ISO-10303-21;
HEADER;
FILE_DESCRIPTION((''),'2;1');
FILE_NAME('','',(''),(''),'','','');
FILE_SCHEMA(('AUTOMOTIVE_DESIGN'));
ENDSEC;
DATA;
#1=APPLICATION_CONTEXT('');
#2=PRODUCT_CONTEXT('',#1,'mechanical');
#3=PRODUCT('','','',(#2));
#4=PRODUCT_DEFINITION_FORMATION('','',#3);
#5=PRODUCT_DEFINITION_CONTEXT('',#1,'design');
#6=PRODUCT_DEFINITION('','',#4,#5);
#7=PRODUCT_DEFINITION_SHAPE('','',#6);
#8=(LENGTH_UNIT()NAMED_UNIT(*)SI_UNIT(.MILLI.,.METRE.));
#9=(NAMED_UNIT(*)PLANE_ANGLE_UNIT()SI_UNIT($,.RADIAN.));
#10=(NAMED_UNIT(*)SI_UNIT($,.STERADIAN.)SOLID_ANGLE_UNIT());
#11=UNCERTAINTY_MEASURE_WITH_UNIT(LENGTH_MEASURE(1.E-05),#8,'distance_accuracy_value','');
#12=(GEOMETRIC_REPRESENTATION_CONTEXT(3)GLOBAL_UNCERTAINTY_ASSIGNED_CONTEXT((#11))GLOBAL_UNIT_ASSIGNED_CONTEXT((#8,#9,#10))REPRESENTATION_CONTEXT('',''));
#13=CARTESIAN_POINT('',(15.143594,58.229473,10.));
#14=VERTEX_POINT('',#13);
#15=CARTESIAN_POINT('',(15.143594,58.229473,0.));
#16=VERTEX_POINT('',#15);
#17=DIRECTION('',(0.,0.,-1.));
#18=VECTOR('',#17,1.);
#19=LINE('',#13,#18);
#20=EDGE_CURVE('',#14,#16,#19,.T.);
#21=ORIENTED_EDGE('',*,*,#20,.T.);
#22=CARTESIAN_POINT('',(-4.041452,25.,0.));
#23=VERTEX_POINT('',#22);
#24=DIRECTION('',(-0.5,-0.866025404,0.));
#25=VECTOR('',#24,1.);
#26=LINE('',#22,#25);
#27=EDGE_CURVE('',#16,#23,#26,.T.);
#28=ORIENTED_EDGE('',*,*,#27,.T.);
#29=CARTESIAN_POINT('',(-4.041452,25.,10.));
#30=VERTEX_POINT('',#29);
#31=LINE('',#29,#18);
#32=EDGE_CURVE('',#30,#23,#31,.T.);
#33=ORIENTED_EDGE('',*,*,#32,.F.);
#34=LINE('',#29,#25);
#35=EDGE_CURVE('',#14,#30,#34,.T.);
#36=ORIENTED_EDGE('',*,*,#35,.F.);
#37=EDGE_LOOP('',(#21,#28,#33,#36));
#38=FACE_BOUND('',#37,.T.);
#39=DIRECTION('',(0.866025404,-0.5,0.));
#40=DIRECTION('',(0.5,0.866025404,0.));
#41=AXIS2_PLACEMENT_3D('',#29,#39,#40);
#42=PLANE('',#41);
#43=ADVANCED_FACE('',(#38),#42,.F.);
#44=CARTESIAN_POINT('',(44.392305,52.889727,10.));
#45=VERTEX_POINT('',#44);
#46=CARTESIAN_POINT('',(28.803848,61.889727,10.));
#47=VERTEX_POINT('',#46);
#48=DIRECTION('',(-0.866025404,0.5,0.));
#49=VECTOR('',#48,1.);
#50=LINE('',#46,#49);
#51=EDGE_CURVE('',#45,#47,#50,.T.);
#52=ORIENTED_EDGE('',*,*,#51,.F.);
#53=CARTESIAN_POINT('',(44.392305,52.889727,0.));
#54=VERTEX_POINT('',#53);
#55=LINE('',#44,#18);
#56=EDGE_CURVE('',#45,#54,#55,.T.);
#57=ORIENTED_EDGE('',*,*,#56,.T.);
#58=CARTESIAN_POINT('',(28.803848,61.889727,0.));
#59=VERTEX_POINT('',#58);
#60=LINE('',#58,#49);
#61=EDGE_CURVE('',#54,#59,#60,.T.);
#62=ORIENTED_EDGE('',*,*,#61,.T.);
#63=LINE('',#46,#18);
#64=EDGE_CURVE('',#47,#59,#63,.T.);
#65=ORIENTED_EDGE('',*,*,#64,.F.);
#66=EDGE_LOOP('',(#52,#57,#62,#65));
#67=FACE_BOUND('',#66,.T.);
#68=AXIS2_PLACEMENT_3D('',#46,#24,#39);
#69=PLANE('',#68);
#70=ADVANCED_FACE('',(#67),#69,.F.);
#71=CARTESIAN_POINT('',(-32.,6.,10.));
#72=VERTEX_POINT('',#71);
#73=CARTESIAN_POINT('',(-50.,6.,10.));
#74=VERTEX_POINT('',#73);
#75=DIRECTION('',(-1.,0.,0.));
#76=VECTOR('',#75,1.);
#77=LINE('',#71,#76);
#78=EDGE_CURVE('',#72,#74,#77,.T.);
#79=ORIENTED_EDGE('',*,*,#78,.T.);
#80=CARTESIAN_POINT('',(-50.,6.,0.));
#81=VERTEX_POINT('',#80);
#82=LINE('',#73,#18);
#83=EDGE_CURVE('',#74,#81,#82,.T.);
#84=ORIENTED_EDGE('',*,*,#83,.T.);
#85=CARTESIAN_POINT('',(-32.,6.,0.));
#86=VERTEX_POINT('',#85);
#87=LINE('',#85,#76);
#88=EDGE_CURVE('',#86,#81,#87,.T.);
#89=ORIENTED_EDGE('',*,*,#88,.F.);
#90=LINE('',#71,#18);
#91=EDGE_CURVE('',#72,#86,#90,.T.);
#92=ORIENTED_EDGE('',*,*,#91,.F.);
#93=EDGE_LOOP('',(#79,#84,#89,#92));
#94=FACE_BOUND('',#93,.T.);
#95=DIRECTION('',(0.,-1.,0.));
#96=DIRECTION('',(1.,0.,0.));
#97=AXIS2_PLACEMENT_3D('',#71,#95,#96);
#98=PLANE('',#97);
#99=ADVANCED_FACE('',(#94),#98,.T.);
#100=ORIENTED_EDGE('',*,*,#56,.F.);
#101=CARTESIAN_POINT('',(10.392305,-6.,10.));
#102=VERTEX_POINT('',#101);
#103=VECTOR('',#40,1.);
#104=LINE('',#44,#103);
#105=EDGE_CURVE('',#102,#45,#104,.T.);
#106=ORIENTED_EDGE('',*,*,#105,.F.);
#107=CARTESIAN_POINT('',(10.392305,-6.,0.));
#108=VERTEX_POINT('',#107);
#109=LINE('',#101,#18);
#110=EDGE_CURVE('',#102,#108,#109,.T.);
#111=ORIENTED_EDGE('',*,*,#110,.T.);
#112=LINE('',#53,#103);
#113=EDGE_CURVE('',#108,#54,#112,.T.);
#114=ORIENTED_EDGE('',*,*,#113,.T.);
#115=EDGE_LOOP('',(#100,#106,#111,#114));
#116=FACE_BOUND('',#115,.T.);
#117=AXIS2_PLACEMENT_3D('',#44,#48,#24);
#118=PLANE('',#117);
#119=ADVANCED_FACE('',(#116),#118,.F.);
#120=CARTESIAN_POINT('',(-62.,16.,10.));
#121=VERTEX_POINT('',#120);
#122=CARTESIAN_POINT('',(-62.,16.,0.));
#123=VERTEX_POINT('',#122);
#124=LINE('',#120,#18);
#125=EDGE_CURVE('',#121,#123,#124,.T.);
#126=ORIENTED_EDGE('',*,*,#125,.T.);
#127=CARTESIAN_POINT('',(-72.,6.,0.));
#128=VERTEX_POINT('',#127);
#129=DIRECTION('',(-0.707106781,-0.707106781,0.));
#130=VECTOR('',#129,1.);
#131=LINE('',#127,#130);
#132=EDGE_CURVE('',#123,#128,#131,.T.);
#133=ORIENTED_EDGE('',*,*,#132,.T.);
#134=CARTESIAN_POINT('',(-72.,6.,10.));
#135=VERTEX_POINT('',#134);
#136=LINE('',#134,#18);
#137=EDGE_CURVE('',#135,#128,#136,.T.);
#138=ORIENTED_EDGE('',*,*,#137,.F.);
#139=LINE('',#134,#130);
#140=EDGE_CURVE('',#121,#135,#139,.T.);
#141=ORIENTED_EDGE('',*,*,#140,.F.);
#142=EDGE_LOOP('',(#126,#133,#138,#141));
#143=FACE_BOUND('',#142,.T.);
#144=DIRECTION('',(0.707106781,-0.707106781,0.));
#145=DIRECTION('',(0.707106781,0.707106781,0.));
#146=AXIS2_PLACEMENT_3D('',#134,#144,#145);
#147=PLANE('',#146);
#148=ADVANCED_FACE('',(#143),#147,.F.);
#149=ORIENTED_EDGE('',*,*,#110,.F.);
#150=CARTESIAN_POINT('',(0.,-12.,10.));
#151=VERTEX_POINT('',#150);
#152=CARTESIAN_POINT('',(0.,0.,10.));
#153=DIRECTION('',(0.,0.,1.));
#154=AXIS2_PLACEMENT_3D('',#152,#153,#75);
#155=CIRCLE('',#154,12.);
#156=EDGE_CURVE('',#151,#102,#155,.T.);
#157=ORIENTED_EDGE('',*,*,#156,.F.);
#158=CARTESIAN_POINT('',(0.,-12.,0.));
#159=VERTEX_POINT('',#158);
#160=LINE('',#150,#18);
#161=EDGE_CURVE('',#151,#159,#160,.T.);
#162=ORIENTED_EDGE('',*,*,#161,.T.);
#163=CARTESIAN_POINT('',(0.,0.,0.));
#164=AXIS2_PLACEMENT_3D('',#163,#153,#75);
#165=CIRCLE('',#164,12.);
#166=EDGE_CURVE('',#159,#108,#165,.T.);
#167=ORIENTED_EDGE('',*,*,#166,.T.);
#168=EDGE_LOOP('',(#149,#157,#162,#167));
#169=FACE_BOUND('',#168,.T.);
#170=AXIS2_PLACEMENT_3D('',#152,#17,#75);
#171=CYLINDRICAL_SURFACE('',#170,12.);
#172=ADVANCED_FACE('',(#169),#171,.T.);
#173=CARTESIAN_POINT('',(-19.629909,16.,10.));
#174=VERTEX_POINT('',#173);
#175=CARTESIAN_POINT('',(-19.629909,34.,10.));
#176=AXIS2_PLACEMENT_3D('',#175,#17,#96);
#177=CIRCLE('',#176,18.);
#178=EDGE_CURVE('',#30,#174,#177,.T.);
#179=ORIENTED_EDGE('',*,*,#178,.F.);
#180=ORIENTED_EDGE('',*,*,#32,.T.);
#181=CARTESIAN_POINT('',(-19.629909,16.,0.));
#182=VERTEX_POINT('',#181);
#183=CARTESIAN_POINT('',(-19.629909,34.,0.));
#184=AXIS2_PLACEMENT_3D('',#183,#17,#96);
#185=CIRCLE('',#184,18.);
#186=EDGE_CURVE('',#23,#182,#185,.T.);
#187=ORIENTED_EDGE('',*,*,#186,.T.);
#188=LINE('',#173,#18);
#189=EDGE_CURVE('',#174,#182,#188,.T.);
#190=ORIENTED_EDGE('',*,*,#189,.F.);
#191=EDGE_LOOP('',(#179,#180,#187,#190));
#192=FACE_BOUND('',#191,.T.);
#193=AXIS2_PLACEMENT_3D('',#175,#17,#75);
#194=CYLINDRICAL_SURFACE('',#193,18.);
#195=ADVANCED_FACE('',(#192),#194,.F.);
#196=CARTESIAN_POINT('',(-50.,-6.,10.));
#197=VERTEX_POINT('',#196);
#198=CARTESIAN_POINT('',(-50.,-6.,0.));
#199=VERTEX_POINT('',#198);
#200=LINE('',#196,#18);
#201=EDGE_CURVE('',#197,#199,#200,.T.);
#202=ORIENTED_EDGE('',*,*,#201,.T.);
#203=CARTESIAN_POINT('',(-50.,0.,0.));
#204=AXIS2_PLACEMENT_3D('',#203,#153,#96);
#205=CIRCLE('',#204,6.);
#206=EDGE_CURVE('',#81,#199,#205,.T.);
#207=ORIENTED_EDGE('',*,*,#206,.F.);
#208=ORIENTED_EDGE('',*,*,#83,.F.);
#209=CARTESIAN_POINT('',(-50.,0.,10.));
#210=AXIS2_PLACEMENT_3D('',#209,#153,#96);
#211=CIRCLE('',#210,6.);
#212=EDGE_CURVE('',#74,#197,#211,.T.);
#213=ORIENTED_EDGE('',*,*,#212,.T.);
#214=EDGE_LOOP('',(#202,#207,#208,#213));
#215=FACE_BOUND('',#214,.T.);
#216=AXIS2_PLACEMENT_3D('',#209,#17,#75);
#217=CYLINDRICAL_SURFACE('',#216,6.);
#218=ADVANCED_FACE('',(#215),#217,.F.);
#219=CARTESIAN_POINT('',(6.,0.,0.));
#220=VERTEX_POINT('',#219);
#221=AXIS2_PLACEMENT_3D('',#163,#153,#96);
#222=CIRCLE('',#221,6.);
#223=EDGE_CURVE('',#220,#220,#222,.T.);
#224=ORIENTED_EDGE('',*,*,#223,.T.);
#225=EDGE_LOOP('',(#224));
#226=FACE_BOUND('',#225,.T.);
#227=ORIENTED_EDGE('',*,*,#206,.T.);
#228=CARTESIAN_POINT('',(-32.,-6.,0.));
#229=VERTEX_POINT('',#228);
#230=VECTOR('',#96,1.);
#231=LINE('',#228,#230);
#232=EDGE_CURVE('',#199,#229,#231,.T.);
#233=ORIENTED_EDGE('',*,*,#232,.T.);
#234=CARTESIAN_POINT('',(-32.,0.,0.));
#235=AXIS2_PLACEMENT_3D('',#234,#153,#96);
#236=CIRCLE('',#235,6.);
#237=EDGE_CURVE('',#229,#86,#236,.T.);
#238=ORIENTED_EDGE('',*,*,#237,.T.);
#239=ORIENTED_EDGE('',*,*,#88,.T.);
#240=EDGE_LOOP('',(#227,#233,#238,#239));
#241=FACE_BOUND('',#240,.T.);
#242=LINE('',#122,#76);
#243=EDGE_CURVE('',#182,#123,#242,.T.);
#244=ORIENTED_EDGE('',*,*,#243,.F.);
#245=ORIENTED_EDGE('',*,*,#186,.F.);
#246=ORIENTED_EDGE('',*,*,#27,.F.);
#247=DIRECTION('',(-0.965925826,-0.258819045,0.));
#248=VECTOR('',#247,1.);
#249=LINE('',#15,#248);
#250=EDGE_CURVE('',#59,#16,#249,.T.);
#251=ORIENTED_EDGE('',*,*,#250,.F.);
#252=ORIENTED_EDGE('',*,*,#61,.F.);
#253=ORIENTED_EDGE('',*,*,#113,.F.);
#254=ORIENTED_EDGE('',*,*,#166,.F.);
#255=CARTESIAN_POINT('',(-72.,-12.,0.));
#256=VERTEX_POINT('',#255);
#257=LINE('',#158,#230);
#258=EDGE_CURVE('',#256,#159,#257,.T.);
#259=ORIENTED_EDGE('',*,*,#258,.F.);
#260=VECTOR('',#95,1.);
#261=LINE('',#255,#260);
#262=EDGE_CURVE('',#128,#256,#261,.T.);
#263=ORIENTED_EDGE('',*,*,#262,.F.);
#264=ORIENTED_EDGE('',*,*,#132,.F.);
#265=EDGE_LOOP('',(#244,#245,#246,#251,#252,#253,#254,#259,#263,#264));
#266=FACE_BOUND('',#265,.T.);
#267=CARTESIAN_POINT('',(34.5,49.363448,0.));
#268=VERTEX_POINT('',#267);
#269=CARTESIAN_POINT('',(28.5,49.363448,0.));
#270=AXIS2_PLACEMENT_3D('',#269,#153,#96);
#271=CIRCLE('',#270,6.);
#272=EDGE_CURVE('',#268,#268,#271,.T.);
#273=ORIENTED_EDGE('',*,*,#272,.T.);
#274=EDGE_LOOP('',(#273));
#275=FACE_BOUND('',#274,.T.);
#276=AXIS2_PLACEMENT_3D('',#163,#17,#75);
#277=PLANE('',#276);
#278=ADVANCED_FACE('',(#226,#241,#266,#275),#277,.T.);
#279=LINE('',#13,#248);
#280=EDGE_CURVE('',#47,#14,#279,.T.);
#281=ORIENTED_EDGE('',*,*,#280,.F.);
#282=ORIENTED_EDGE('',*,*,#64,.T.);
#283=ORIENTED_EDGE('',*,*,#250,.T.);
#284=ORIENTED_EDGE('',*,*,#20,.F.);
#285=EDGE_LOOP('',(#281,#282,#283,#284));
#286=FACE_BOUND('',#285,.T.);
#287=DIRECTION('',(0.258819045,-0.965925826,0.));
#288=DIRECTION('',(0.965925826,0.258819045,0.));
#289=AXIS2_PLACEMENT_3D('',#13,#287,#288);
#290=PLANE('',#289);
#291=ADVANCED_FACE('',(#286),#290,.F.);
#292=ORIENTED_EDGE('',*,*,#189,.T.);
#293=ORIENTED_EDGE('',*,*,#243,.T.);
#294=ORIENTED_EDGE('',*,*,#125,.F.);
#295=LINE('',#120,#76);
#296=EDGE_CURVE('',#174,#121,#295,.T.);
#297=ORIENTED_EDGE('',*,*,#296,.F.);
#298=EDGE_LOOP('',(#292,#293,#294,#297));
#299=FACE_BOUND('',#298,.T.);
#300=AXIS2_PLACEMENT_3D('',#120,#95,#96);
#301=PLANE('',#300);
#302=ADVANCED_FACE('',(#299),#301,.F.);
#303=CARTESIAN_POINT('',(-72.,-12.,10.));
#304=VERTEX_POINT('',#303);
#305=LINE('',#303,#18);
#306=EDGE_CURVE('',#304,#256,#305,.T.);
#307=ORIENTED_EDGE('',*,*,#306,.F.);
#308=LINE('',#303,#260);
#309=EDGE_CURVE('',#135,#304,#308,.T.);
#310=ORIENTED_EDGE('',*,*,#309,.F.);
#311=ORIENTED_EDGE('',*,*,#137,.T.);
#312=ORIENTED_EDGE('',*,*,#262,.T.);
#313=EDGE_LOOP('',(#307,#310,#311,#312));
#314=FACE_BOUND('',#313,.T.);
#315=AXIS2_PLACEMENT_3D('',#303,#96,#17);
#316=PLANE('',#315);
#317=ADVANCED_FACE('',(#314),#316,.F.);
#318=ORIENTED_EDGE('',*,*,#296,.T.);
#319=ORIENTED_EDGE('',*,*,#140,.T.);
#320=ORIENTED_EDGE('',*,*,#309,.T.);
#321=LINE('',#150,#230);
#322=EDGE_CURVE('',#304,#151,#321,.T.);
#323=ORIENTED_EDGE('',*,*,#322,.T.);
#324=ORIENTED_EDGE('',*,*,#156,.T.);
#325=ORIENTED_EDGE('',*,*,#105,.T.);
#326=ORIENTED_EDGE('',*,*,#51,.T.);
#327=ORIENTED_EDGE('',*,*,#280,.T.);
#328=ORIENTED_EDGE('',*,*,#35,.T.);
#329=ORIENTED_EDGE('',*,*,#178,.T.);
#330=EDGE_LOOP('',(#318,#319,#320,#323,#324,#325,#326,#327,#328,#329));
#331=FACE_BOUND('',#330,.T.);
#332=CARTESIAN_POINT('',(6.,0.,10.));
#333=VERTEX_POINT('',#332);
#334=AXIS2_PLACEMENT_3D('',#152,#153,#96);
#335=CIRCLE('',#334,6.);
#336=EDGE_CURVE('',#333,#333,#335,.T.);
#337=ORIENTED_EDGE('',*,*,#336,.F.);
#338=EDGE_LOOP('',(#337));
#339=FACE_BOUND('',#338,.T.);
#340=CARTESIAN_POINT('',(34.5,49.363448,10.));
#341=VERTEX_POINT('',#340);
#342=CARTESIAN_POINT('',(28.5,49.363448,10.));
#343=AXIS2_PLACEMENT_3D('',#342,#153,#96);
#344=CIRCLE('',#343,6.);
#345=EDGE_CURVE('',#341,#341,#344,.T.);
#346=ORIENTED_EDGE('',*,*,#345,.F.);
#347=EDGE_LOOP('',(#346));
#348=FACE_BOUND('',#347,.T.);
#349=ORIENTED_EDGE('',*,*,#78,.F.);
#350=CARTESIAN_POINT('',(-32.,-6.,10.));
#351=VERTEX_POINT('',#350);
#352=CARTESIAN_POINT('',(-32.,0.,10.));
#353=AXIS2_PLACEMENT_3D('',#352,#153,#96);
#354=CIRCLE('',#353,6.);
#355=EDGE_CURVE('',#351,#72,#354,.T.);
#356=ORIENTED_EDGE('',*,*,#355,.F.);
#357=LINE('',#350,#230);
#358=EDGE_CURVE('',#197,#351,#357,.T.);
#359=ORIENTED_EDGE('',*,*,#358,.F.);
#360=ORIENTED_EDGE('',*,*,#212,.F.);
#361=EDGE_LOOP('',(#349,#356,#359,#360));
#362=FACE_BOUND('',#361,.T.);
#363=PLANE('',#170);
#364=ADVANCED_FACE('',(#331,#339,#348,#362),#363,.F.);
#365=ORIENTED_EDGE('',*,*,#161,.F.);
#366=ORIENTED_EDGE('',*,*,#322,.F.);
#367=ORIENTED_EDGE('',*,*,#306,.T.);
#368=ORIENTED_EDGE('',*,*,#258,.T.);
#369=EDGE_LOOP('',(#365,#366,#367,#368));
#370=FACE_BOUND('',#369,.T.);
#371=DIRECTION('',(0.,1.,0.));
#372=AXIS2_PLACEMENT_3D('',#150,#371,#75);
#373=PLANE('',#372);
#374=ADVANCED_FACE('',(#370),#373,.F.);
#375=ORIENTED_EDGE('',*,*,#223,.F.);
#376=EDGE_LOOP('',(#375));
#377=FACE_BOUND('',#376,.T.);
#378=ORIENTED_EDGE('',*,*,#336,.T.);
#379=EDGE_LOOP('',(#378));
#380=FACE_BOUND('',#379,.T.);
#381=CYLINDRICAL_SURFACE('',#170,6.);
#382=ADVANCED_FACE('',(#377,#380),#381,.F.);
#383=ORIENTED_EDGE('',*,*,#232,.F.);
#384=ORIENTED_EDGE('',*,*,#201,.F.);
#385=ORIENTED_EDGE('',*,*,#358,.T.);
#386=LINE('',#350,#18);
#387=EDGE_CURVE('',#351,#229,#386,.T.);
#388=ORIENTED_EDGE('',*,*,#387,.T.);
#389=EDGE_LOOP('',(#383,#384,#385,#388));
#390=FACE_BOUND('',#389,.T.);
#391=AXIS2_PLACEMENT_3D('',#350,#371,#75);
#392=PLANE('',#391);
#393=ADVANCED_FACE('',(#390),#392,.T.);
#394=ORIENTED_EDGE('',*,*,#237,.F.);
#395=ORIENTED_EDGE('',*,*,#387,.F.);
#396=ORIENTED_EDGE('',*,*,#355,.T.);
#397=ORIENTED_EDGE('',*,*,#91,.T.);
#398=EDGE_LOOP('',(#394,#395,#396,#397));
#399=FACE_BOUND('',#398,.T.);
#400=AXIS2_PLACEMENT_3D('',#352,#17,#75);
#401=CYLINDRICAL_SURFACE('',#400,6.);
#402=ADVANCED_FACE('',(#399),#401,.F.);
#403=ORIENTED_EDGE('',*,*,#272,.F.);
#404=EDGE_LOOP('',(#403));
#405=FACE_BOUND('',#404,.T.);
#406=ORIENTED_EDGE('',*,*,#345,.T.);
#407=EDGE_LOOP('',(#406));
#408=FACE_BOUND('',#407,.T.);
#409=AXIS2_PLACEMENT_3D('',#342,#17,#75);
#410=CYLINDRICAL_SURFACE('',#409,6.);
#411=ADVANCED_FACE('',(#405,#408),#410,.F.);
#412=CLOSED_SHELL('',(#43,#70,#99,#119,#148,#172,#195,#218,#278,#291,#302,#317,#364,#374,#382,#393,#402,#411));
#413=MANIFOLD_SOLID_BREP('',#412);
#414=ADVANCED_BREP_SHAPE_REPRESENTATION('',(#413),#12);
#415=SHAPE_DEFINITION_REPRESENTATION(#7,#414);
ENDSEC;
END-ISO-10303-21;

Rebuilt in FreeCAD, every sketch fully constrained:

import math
import FreeCAD as App
import Part
import Sketcher
from FreeCAD import Vector
Q = App.Units.Quantity

doc = App.newDocument("Part")
body = doc.addObject("PartDesign::Body", "Body")

# Sketch on XY plane
sketch1 = body.newObject("Sketcher::SketchObject", "Sketch")
sketch1.AttachmentSupport = (doc.getObject("XY_Plane"), [""])
sketch1.MapMode = "FlatFace"
sketch1.addGeometry([
    Part.LineSegment(Vector(-19.629909, 16, 0), Vector(-62, 16, 0)),  # 0
    Part.LineSegment(Vector(-62, 16, 0), Vector(-72, 6, 0)),  # 1
    Part.LineSegment(Vector(-72, 6, 0), Vector(-72, -12, 0)),  # 2
    Part.LineSegment(Vector(-72, -12, 0), Vector(0, -12, 0)),  # 3
    Part.ArcOfCircle(Part.Circle(Vector(0, 0, 0), Vector(0, 0, 1), 12), math.radians(-90), math.radians(-30)),  # 4
    Part.LineSegment(Vector(10.392305, -6, 0), Vector(44.392305, 52.889727, 0)),  # 5
    Part.LineSegment(Vector(44.392305, 52.889727, 0), Vector(28.803848, 61.889727, 0)),  # 6
    Part.LineSegment(Vector(28.803848, 61.889727, 0), Vector(15.143594, 58.229473, 0)),  # 7
    Part.LineSegment(Vector(15.143594, 58.229473, 0), Vector(-4.041452, 25, 0)),  # 8
    Part.ArcOfCircle(Part.Circle(Vector(-19.629909, 34, 0), Vector(0, 0, 1), 18), math.radians(-90), math.radians(-30)),  # 9
    Part.Circle(Vector(0, 0, 0), Vector(0, 0, 1), 6),  # 10
    Part.LineSegment(Vector(-32, -6, 0), Vector(-50, -6, 0)),  # 11
    Part.ArcOfCircle(Part.Circle(Vector(-50, 0, 0), Vector(0, 0, 1), 6), math.radians(90), math.radians(270)),  # 12
    Part.LineSegment(Vector(-50, 6, 0), Vector(-32, 6, 0)),  # 13
    Part.ArcOfCircle(Part.Circle(Vector(-32, 0, 0), Vector(0, 0, 1), 6), math.radians(-90), math.radians(90)),  # 14
    Part.Circle(Vector(28.5, 49.363448, 0), Vector(0, 0, 1), 6),  # 15
], False)
sketch1.addConstraint([
    Sketcher.Constraint("Coincident", 0, 2, 1, 1),
    Sketcher.Constraint("Coincident", 1, 2, 2, 1),
    Sketcher.Constraint("Coincident", 2, 2, 3, 1),
    Sketcher.Constraint("Tangent", 3, 2, 4, 1),
    Sketcher.Constraint("Tangent", 4, 2, 5, 1),
    Sketcher.Constraint("Coincident", 5, 2, 6, 1),
    Sketcher.Constraint("Coincident", 6, 2, 7, 1),
    Sketcher.Constraint("Coincident", 7, 2, 8, 1),
    Sketcher.Constraint("Tangent", 8, 2, 9, 2),
    Sketcher.Constraint("Tangent", 9, 1, 0, 1),
    Sketcher.Constraint("Tangent", 11, 2, 12, 2),
    Sketcher.Constraint("Tangent", 12, 1, 13, 1),
    Sketcher.Constraint("Tangent", 13, 2, 14, 2),
    Sketcher.Constraint("Tangent", 14, 1, 11, 1),
    Sketcher.Constraint("Horizontal", 0),
    Sketcher.Constraint("Vertical", 2),
    Sketcher.Constraint("Horizontal", 3),
    Sketcher.Constraint("Horizontal", 11),
    Sketcher.Constraint("Horizontal", 13),
    Sketcher.Constraint("Coincident", 4, 3, -1, 1),
    Sketcher.Constraint("Coincident", 10, 3, -1, 1),
    Sketcher.Constraint("Equal", 10, 12),
    Sketcher.Constraint("Equal", 14, 15),
    Sketcher.Constraint("PointOnObject", 12, 3, -1),
    Sketcher.Constraint("Perpendicular", 5, 6),
    Sketcher.Constraint("Perpendicular", 6, 8),
    Sketcher.Constraint("Horizontal", 4, 2, 11, 2),
    Sketcher.Constraint("Horizontal", 1, 2, 12, 1),
    Sketcher.Constraint("Equal", 13, 2),
    Sketcher.Constraint("Equal", 1, 7),
    Sketcher.Constraint("Diameter", 10, Q("12 mm")),
    Sketcher.Constraint("Radius", 4, Q("12 mm")),
    Sketcher.Constraint("Radius", 9, Q("18 mm")),
    Sketcher.Constraint("DistanceX", 3, 1, 3, 2, Q("72 mm")),
    Sketcher.Constraint("Angle", 1, Q("-135 deg")),
    Sketcher.Constraint("Angle", 7, Q("-165 deg")),
    Sketcher.Constraint("Distance", 5, Q("68 mm")),
    Sketcher.Constraint("Distance", 6, Q("18 mm")),
    Sketcher.Constraint("DistanceY", -1, 1, 9, 3, Q("34 mm")),
    Sketcher.Constraint("DistanceX", 12, 3, -1, 1, Q("50 mm")),
    Sketcher.Constraint("DistanceX", -1, 1, 15, 3, Q("28.5 mm")),
    Sketcher.Constraint("DistanceY", -1, 1, 15, 3, Q("49.363448 mm")),
])
pad1 = body.newObject("PartDesign::Pad", "Pad")
pad1.Profile = sketch1
pad1.Length = 10

doc.recompute()
